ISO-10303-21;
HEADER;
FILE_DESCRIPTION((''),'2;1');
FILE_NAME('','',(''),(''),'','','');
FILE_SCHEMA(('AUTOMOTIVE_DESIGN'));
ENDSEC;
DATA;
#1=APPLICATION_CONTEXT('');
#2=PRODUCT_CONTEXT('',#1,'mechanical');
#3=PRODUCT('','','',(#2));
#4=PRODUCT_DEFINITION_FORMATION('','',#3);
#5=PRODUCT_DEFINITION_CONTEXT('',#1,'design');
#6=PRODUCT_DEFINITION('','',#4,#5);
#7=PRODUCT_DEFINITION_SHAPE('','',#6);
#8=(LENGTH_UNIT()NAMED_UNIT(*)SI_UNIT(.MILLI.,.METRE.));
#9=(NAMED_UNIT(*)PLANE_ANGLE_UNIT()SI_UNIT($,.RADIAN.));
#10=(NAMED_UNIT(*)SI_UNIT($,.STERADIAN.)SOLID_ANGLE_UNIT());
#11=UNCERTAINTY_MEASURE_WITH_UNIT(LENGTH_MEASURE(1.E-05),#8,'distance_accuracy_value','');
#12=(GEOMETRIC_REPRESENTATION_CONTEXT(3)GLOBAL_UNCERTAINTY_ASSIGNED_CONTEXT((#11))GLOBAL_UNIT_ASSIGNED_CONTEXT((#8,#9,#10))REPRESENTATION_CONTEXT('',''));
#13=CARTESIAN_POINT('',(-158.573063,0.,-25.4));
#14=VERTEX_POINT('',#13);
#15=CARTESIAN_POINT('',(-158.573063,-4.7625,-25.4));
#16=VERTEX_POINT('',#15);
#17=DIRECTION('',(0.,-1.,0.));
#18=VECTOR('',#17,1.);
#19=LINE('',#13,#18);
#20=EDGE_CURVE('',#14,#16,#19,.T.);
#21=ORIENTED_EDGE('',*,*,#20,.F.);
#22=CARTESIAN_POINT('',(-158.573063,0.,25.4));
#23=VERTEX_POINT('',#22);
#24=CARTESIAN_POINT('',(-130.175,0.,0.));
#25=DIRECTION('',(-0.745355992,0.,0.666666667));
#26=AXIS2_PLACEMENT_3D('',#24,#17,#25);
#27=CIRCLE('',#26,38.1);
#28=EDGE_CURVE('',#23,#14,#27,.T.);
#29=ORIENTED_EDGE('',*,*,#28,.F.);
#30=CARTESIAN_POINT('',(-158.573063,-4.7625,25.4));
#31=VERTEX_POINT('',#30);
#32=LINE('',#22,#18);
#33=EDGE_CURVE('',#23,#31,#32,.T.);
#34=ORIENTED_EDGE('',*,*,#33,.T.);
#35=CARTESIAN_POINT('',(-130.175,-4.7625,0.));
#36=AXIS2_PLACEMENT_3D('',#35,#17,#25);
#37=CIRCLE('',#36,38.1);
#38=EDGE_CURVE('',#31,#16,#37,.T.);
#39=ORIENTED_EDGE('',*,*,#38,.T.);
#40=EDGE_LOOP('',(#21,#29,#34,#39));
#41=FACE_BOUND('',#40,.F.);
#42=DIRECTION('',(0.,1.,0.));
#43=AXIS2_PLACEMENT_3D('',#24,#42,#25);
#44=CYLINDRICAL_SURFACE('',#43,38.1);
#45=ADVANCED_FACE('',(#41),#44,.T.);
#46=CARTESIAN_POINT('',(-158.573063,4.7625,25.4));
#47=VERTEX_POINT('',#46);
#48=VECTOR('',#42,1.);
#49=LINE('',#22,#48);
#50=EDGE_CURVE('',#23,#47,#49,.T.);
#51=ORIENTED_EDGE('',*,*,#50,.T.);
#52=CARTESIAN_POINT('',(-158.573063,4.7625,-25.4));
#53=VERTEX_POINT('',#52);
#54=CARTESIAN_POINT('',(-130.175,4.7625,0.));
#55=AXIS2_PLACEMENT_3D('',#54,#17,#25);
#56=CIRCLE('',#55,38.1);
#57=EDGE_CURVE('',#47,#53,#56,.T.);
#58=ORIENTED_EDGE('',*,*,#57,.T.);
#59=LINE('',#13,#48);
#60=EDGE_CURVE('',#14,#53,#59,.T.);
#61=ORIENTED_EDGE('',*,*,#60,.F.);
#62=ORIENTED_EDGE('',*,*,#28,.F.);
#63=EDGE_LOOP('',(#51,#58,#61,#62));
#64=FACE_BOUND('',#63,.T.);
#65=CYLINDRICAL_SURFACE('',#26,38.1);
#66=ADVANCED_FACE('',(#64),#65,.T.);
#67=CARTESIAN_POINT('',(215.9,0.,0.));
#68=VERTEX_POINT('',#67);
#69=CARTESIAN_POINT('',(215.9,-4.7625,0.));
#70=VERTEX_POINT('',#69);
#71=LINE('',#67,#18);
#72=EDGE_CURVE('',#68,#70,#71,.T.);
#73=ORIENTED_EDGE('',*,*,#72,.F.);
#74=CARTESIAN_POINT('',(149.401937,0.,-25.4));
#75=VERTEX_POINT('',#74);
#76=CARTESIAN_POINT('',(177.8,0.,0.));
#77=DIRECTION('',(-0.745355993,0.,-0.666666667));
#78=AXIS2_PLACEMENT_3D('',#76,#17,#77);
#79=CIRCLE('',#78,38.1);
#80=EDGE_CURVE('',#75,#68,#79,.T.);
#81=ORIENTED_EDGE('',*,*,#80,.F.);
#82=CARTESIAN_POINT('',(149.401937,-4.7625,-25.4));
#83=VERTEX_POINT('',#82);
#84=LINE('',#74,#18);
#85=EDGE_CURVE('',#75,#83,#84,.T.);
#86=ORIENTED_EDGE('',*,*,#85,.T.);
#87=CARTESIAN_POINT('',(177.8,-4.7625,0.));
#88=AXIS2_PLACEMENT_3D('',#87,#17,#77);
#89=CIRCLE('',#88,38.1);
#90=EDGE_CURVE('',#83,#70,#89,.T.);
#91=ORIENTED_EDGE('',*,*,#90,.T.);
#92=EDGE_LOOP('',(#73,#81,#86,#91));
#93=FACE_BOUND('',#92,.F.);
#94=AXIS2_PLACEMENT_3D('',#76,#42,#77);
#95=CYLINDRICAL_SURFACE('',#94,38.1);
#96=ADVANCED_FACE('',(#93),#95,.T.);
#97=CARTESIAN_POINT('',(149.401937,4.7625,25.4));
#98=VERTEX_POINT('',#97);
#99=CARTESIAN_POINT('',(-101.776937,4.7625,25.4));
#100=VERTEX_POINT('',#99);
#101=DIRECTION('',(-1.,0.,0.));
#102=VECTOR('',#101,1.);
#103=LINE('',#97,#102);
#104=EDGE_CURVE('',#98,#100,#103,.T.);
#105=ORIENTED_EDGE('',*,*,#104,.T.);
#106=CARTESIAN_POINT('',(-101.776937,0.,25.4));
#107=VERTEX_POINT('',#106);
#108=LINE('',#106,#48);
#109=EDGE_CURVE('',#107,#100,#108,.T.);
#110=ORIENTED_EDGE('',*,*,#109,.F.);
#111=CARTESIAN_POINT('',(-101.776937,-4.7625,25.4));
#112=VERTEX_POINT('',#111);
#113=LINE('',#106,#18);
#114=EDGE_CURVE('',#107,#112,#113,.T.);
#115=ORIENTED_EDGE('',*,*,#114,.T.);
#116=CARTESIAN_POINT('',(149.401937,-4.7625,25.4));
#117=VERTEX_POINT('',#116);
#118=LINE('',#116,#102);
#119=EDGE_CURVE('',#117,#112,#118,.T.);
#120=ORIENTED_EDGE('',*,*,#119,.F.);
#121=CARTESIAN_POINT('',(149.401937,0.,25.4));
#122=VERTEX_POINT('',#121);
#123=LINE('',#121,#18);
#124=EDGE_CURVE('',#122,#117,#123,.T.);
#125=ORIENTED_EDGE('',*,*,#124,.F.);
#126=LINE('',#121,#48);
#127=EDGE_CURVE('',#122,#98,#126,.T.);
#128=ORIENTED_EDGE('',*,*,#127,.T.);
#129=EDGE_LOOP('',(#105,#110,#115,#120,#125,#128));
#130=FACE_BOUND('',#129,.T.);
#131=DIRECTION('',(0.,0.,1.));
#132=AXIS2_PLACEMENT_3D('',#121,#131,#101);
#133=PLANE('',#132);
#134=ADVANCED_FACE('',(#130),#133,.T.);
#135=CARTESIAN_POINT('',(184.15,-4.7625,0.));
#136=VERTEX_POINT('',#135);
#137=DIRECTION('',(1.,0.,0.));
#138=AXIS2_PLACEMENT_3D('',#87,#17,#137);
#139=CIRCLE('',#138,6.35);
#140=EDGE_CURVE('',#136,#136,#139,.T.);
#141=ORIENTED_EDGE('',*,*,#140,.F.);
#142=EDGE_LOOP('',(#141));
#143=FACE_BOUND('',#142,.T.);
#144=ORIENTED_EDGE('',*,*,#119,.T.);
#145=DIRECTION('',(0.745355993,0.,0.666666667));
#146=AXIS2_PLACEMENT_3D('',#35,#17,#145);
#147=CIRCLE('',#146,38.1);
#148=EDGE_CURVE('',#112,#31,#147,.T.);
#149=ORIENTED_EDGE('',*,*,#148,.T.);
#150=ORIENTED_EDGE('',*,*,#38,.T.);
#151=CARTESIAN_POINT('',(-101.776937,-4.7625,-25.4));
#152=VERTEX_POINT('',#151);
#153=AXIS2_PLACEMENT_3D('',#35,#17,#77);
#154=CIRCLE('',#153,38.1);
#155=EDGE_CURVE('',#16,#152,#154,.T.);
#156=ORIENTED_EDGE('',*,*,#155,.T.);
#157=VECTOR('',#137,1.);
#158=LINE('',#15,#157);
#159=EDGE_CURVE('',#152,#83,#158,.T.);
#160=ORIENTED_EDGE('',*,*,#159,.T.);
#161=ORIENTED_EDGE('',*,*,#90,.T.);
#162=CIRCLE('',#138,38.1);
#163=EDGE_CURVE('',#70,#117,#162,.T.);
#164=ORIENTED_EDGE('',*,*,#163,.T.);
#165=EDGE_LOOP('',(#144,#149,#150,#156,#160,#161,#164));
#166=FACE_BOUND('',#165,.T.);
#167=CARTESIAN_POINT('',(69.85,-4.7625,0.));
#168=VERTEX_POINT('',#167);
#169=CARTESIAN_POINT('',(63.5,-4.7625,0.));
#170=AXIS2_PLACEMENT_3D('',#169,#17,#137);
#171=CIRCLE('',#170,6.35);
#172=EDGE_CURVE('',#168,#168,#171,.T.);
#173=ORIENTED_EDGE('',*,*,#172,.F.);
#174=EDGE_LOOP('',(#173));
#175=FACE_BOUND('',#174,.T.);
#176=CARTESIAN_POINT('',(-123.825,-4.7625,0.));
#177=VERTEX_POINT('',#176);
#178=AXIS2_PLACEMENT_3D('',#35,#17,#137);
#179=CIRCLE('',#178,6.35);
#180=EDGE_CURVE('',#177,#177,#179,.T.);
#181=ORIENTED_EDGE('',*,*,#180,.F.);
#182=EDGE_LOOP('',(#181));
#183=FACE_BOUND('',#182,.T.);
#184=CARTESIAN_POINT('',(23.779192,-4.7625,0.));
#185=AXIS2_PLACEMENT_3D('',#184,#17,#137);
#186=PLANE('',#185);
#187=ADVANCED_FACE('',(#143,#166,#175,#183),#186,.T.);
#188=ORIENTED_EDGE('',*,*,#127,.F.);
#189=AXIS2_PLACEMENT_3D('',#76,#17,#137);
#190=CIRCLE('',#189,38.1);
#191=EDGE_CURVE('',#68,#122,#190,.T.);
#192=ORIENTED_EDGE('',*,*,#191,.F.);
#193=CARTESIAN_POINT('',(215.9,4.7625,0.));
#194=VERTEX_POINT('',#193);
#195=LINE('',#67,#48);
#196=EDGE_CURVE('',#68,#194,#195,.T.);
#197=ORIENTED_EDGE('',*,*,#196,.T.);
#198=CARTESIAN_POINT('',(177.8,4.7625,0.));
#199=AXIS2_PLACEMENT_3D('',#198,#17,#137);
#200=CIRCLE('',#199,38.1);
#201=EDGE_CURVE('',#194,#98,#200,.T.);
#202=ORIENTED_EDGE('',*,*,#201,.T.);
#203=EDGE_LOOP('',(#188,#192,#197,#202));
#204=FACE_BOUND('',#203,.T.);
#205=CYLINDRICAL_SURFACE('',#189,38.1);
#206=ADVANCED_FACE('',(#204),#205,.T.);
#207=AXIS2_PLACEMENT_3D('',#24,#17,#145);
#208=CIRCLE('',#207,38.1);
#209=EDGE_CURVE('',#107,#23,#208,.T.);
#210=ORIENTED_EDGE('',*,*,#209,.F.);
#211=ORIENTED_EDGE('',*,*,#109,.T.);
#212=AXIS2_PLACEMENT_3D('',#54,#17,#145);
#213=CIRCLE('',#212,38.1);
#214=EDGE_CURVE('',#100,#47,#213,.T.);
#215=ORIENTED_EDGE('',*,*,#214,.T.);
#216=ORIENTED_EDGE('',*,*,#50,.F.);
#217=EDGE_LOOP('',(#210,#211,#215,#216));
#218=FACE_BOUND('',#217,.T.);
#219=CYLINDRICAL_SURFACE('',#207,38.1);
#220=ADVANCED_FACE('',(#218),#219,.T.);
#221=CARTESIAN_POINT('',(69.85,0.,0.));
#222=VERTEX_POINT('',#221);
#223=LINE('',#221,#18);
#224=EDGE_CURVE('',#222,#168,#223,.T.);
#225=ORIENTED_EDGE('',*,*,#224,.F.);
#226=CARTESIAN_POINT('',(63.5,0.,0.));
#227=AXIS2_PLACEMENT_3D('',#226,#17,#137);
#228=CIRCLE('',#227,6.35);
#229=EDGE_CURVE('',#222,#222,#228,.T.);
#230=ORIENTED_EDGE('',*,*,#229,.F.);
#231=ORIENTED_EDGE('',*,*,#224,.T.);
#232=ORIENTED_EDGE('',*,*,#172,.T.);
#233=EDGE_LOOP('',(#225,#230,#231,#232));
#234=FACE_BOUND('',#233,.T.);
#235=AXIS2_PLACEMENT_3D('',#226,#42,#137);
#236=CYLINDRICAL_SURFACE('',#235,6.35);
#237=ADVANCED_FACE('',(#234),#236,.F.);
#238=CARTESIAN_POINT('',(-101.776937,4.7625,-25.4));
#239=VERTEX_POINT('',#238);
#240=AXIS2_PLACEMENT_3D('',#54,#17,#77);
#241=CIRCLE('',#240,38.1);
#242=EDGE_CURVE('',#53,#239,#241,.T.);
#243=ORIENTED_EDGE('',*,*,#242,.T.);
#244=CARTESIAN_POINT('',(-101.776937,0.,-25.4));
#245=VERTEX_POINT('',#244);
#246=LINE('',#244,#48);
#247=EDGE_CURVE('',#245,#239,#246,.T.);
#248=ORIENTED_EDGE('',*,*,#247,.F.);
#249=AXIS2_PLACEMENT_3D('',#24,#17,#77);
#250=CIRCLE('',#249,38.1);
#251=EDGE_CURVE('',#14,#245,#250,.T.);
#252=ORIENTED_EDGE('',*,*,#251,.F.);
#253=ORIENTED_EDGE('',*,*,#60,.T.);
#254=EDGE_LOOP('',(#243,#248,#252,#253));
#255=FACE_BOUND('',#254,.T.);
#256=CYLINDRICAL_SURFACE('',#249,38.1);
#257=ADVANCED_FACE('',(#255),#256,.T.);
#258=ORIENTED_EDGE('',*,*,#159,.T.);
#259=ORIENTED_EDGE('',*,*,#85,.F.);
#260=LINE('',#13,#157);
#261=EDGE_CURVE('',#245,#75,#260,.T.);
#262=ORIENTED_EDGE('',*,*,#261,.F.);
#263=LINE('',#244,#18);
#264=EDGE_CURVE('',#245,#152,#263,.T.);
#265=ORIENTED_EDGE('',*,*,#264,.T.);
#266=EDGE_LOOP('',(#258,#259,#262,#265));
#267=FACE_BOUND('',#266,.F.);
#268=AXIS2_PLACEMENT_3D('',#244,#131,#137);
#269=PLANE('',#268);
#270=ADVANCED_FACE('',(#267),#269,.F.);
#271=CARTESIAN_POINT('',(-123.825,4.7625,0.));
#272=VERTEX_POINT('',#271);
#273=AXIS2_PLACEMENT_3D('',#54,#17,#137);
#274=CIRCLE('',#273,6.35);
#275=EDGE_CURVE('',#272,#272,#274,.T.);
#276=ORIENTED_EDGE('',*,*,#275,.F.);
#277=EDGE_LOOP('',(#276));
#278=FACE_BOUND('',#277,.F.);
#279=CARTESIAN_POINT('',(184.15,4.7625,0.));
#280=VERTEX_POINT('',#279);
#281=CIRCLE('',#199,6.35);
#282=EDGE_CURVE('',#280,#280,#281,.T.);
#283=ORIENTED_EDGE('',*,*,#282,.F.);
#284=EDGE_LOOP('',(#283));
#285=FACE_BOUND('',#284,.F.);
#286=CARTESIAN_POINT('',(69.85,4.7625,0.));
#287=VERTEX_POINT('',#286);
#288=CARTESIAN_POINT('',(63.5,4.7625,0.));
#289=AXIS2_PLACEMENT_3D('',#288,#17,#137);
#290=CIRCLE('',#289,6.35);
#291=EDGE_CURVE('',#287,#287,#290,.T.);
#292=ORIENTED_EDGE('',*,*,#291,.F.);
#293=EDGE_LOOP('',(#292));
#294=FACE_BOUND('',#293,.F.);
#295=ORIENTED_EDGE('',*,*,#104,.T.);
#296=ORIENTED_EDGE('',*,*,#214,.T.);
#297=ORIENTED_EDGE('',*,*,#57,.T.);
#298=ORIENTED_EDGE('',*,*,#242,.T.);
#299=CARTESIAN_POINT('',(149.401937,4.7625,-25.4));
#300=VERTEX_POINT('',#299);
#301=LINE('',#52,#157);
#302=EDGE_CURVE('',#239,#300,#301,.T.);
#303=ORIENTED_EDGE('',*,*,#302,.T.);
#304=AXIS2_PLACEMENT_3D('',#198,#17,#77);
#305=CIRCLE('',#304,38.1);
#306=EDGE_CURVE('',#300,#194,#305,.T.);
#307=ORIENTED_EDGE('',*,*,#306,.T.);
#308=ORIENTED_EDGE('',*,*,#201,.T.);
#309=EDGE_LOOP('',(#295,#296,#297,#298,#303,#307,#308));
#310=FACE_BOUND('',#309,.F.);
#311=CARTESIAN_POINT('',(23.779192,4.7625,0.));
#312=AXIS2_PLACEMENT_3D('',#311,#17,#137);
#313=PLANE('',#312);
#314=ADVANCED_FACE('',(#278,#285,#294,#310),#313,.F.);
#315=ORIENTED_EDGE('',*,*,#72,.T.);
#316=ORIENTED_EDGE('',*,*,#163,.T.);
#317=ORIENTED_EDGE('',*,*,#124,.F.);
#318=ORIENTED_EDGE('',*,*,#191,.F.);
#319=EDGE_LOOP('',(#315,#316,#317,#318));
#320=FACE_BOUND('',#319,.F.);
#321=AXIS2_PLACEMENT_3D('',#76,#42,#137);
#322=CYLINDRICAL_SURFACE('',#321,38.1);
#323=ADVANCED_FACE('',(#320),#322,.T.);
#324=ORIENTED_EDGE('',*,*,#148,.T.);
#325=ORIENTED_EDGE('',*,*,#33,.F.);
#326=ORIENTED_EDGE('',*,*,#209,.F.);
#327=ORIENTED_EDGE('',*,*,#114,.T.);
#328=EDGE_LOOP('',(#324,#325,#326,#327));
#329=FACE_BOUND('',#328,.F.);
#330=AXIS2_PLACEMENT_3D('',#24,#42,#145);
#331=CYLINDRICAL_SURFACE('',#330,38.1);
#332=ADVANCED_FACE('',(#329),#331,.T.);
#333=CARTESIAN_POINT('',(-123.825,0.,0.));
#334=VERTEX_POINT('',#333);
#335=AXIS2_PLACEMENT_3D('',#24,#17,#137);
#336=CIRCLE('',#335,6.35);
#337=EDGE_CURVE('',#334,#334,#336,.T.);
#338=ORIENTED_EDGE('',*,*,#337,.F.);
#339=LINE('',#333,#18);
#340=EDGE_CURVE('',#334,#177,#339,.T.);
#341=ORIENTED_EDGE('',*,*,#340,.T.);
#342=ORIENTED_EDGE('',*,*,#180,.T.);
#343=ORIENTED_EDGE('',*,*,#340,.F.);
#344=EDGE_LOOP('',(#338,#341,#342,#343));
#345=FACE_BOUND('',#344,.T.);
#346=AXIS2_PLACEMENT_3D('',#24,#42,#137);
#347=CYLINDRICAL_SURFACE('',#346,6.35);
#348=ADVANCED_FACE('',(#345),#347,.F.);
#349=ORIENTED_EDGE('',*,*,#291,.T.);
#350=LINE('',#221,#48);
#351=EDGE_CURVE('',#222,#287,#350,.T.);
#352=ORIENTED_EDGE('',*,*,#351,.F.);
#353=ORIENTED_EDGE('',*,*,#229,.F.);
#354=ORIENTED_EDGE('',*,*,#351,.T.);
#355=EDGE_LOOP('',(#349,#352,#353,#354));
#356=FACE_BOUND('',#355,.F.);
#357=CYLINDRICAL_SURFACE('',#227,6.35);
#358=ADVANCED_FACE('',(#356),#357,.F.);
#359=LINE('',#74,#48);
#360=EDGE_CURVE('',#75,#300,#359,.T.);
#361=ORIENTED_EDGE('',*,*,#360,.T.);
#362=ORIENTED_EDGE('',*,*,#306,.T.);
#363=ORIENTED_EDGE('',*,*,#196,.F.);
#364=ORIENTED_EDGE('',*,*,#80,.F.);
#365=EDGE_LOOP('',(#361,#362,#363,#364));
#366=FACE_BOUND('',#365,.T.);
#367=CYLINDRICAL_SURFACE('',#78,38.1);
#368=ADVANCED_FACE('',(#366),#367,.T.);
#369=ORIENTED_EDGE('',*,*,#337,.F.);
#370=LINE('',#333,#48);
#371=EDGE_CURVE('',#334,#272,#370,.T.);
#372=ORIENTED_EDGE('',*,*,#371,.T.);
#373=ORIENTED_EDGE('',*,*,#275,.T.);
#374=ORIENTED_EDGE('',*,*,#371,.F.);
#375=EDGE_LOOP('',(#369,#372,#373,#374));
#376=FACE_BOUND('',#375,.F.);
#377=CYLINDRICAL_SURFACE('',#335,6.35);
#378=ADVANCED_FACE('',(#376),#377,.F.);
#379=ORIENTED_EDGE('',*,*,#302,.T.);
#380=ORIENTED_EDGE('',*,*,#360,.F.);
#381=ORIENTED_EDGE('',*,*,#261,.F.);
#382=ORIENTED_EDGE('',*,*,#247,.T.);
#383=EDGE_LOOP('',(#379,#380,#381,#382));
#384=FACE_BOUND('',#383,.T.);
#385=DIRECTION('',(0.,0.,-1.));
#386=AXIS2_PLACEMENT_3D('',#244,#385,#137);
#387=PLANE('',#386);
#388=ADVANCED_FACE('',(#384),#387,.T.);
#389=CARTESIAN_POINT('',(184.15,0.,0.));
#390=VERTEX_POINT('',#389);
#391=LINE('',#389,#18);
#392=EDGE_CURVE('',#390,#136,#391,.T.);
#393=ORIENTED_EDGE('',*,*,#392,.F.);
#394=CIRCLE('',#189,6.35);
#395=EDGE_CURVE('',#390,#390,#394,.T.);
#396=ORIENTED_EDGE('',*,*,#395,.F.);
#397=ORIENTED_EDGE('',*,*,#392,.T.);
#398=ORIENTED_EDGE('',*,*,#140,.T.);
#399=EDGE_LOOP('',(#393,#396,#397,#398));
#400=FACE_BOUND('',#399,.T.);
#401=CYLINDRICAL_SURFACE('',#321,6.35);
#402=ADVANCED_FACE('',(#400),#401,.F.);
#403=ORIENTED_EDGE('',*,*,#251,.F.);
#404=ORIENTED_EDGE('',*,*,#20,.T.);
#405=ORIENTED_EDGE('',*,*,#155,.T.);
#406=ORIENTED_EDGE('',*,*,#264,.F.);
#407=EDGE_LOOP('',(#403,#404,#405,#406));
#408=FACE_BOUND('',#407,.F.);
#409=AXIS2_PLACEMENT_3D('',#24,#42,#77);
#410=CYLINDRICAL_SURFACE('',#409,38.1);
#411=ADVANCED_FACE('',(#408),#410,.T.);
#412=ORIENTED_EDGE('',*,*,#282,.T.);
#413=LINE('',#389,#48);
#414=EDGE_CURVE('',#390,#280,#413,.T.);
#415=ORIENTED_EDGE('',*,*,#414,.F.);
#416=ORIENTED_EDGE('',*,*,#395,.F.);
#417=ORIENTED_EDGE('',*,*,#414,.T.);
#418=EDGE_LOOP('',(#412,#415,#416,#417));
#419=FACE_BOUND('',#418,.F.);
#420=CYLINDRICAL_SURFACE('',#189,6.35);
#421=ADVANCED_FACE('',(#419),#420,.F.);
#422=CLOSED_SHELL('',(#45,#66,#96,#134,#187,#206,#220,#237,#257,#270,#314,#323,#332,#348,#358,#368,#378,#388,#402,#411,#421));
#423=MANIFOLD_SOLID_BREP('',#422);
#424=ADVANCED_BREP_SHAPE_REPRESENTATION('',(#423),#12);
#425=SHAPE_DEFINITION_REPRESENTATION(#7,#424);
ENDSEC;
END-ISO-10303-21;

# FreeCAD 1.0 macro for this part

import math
import FreeCAD as App
import Part
import Sketcher
from FreeCAD import Vector
Q = App.Units.Quantity

doc = App.newDocument("Part")
params = doc.addObject("Spreadsheet::Sheet", "Params")
for row, (alias, value) in enumerate([
    ("sketch1_diameter", "0.5 in"),
    ("sketch1_radius", "1.5 in"),
    ("pad1_length", "0.375 in"),
], start=1):
    params.set(f"A{row}", alias)
    params.set(f"B{row}", "=" + value)
    params.setAlias(f"B{row}", alias)

body = doc.addObject("PartDesign::Body", "Body")

sketch1 = body.newObject("Sketcher::SketchObject", "Sketch")
sketch1.AttachmentSupport = (doc.getObject("XZ_Plane"), [""])
sketch1.MapMode = "FlatFace"
sketch1.addGeometry(Part.LineSegment(Vector(149.401937, 25.4, 0), Vector(-101.776937, 25.4, 0)), False)
sketch1.addGeometry(Part.ArcOfCircle(Part.Circle(Vector(-130.175, 0, 0), Vector(0, 0, 1), 38.1), math.radians(41.810315), math.radians(138.189685)), False)
sketch1.addGeometry(Part.ArcOfCircle(Part.Circle(Vector(-130.175, 0, 0), Vector(0, 0, 1), 38.1), math.radians(138.189685), math.radians(221.810315)), False)
sketch1.addGeometry(Part.ArcOfCircle(Part.Circle(Vector(-130.175, 0, 0), Vector(0, 0, 1), 38.1), math.radians(-138.189685), math.radians(-41.810315)), False)
sketch1.addGeometry(Part.LineSegment(Vector(-101.776937, -25.4, 0), Vector(149.401937, -25.4, 0)), False)
sketch1.addGeometry(Part.ArcOfCircle(Part.Circle(Vector(177.8, 0, 0), Vector(0, 0, 1), 38.1), math.radians(-138.189685), math.radians(0)), False)
sketch1.addGeometry(Part.ArcOfCircle(Part.Circle(Vector(177.8, 0, 0), Vector(0, 0, 1), 38.1), math.radians(0), math.radians(138.189685)), False)
sketch1.addGeometry(Part.Circle(Vector(-130.175, 0, 0), Vector(0, 0, 1), 6.35), False)
sketch1.addGeometry(Part.Circle(Vector(63.5, 0, 0), Vector(0, 0, 1), 6.35), False)
sketch1.addGeometry(Part.Circle(Vector(177.8, 0, 0), Vector(0, 0, 1), 6.35), False)
sketch1.addConstraint(Sketcher.Constraint("Coincident", 0, 2, 1, 1))
sketch1.addConstraint(Sketcher.Constraint("Tangent", 1, 2, 2, 1))
sketch1.addConstraint(Sketcher.Constraint("Tangent", 2, 2, 3, 1))
sketch1.addConstraint(Sketcher.Constraint("Coincident", 3, 2, 4, 1))
sketch1.addConstraint(Sketcher.Constraint("Coincident", 4, 2, 5, 1))
sketch1.addConstraint(Sketcher.Constraint("Tangent", 5, 2, 6, 1))
sketch1.addConstraint(Sketcher.Constraint("Coincident", 6, 2, 0, 1))
sketch1.addConstraint(Sketcher.Constraint("Horizontal", 0))
sketch1.addConstraint(Sketcher.Constraint("Horizontal", 4))
sketch1.addConstraint(Sketcher.Constraint("Coincident", 3, 3, 1, 3))
sketch1.addConstraint(Sketcher.Constraint("Coincident", 7, 3, 1, 3))
sketch1.addConstraint(Sketcher.Constraint("Coincident", 9, 3, 5, 3))
sketch1.addConstraint(Sketcher.Constraint("Equal", 3, 5))
sketch1.addConstraint(Sketcher.Constraint("Equal", 5, 6))
sketch1.addConstraint(Sketcher.Constraint("Equal", 7, 8))
sketch1.addConstraint(Sketcher.Constraint("Equal", 8, 9))
sketch1.addConstraint(Sketcher.Constraint("Symmetric", 1, 2, 2, 2, -1))
sketch1.addConstraint(Sketcher.Constraint("Symmetric", 4, 2, 6, 2, -1))
sketch1.addConstraint(Sketcher.Constraint("PointOnObject", 8, 3, -1))
sketch1.addConstraint(Sketcher.Constraint("PointOnObject", 5, 2, -1))
sketch1.addConstraint(Sketcher.Constraint("Horizontal", 0, 2, 1, 2))
sketch1.addConstraint(Sketcher.Constraint("Diameter", 7, Q("0.5 in")))
sketch1.addConstraint(Sketcher.Constraint("Radius", 1, Q("1.5 in")))
sketch1.addConstraint(Sketcher.Constraint("DistanceX", -1, 1, 5, 3, Q("7 in")))
sketch1.addConstraint(Sketcher.Constraint("DistanceY", -1, 1, 0, 2, Q("1 in")))
sketch1.addConstraint(Sketcher.Constraint("DistanceX", 8, 3, 5, 2, Q("6 in")))
sketch1.addConstraint(Sketcher.Constraint("DistanceX", 1, 3, -1, 1, Q("5.125 in")))
sketch1.setExpression("Constraints[21]", "Params.sketch1_diameter")
sketch1.setExpression("Constraints[22]", "Params.sketch1_radius")
pad1 = body.newObject("PartDesign::Pad", "Pad")
pad1.Profile = sketch1
pad1.setExpression("Length", "Params.pad1_length")
pad1.Midplane = True

doc.recompute()
